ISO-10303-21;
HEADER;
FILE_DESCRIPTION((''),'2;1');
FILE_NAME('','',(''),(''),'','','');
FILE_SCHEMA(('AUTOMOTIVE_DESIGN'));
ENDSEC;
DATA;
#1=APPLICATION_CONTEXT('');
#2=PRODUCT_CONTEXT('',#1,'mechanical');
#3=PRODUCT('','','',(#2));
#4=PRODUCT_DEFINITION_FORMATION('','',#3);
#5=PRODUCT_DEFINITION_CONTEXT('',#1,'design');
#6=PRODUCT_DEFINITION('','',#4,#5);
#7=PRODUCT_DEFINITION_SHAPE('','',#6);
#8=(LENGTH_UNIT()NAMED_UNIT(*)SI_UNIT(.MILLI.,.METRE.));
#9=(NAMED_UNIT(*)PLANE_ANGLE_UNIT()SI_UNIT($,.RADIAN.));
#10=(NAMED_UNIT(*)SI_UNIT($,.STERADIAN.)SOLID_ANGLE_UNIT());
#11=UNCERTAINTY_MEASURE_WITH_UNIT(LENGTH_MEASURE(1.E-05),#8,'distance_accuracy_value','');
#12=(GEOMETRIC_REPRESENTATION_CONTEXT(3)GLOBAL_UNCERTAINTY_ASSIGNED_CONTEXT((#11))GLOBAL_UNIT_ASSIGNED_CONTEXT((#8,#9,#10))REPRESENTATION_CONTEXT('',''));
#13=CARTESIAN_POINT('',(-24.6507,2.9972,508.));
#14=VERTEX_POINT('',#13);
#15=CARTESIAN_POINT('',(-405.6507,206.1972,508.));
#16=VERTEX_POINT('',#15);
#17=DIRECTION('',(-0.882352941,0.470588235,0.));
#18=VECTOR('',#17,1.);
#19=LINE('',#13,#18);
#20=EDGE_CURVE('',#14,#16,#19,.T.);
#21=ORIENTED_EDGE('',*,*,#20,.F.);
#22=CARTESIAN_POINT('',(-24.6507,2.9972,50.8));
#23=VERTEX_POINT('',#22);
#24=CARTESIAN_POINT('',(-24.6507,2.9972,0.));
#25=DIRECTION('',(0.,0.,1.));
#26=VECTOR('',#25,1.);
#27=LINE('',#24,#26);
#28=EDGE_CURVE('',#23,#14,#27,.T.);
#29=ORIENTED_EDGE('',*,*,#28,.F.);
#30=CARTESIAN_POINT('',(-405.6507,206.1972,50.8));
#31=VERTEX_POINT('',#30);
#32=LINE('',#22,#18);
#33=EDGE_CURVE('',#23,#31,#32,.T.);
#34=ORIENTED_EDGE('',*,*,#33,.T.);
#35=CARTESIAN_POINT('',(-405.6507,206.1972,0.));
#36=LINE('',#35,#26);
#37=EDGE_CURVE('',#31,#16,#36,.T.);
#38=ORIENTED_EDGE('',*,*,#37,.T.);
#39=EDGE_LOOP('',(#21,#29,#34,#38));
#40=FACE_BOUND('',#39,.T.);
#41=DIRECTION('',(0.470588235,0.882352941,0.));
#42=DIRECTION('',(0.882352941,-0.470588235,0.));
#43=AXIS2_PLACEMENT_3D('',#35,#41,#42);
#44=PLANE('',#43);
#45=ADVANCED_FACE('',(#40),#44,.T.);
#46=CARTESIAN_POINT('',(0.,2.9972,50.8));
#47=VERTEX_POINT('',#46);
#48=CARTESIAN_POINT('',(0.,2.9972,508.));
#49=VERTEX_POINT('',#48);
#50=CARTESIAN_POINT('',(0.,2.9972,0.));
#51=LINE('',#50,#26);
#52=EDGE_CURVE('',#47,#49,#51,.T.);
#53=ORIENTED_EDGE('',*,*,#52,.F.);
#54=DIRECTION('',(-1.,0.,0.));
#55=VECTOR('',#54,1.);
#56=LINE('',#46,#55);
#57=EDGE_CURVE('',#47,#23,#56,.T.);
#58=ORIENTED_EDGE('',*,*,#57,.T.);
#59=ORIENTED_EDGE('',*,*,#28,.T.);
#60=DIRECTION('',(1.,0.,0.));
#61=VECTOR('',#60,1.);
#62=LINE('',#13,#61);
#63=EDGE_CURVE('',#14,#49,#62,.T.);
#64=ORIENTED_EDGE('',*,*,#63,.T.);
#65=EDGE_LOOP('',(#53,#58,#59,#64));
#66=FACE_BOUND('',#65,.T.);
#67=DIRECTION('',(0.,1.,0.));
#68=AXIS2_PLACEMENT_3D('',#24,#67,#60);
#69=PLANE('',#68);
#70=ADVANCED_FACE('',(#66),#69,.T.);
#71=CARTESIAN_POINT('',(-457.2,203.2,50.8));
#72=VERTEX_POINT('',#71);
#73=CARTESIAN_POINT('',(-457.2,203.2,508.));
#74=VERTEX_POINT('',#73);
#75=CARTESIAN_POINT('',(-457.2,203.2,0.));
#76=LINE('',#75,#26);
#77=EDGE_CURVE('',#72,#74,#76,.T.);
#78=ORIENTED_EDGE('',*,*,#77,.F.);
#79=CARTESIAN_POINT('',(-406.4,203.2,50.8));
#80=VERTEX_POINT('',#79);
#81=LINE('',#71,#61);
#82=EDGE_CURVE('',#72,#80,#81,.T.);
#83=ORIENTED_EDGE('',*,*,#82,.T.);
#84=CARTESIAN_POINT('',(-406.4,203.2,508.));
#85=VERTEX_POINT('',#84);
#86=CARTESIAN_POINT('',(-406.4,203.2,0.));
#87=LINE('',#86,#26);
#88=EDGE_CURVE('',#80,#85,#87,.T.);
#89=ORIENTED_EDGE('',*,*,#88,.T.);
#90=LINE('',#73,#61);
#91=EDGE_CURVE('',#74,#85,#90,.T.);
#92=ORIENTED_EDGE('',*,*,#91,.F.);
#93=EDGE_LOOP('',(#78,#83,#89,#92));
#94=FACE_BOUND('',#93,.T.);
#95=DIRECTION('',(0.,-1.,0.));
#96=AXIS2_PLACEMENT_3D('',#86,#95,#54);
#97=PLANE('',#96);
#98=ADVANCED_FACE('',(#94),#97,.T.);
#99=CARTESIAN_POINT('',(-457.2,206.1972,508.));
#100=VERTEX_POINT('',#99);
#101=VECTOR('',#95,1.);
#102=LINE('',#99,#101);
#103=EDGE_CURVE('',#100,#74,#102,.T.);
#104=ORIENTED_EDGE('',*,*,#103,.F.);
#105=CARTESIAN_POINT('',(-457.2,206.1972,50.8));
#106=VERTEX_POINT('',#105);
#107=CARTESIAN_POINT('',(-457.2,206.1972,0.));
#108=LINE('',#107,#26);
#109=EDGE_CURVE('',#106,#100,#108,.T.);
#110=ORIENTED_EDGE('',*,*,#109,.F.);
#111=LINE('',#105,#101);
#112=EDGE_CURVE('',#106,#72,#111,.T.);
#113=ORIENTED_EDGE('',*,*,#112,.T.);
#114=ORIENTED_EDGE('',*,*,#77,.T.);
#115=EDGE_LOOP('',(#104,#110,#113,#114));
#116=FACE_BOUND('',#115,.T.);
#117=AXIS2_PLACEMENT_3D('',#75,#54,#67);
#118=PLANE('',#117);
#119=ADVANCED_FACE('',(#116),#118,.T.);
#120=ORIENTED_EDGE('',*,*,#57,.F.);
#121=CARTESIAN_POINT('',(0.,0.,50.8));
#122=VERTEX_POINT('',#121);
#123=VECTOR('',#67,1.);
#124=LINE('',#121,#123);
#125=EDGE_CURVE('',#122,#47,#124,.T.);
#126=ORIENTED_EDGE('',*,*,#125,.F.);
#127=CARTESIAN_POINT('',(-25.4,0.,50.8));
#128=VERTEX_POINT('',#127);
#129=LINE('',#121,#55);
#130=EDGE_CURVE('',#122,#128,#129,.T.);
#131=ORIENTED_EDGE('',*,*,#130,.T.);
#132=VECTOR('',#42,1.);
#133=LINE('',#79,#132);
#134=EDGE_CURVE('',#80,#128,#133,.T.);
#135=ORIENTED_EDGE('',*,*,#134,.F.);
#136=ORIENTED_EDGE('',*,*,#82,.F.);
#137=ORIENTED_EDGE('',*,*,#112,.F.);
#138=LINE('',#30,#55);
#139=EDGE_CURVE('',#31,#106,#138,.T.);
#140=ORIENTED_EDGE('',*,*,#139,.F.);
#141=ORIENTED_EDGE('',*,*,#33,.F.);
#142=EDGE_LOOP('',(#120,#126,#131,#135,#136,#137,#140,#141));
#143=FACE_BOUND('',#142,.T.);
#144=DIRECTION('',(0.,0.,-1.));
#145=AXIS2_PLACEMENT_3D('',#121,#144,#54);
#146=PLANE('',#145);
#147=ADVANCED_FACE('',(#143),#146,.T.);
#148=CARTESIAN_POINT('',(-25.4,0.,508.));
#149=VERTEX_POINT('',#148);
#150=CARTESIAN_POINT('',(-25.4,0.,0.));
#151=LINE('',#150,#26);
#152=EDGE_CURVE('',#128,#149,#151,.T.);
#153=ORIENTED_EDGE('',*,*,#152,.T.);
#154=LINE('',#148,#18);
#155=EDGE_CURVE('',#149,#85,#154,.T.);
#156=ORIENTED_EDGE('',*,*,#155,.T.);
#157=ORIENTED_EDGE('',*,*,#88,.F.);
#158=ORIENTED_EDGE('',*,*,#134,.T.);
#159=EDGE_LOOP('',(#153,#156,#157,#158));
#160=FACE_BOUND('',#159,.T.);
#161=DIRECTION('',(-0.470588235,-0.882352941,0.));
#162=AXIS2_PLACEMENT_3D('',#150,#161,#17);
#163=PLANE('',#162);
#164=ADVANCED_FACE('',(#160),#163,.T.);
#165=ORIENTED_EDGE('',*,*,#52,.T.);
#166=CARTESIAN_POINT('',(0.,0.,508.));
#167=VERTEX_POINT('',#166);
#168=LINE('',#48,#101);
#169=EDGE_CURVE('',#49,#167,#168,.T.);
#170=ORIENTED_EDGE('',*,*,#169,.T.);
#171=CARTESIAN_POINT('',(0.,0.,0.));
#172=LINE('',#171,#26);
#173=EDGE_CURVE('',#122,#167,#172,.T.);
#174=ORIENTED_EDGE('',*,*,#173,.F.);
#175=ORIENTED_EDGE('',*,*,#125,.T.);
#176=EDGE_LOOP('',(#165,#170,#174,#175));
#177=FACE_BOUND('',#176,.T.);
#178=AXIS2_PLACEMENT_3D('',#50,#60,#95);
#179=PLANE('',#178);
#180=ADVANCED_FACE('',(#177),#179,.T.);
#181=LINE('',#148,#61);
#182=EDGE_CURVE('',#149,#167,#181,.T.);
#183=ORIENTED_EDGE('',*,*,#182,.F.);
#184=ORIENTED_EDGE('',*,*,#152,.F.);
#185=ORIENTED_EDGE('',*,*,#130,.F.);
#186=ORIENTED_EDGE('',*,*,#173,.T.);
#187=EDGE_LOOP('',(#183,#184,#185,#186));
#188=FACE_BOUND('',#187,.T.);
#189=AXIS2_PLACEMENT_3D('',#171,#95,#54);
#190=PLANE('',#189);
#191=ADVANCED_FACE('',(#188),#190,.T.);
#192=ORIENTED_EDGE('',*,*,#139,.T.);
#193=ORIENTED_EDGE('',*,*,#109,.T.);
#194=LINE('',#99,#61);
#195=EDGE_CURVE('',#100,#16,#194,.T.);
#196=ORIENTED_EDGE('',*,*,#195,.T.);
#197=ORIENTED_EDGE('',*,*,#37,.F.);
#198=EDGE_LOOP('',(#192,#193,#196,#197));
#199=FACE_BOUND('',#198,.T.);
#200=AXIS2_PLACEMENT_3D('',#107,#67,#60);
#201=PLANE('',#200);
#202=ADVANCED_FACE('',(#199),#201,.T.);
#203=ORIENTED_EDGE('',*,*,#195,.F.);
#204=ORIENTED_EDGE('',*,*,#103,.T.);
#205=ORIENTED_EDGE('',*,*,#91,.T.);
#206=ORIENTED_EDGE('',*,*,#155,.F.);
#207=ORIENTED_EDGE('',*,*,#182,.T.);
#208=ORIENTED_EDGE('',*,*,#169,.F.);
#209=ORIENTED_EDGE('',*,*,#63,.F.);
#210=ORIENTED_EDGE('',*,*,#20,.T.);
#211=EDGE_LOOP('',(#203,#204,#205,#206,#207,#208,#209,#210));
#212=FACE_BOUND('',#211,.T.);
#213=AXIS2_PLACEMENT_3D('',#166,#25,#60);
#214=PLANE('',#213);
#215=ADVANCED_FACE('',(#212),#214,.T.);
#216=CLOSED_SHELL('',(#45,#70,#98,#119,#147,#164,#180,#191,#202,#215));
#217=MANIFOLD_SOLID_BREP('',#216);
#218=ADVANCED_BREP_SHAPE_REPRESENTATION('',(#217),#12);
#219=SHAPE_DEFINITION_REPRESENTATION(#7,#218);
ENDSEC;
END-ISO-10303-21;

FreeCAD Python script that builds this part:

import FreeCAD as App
import Part
import Sketcher

V = App.Vector
Q = App.Units.Quantity


def add_polygon(sketch, points):
    """Adds a closed chain of lines whose ends are joined by coincident constraints."""
    first, n = sketch.GeometryCount, len(points)
    for a, b in zip(points, points[1:] + points[:1]):
        sketch.addGeometry(Part.LineSegment(App.Vector(*a, 0), App.Vector(*b, 0)), False)
    for i in range(n):
        sketch.addConstraint(Sketcher.Constraint("Coincident", first + i, 2, first + (i + 1) % n, 1))

doc = App.newDocument("Part")
body = doc.addObject("PartDesign::Body", "Body")

sketch1 = body.newObject("Sketcher::SketchObject", "Sketch")
sketch1.AttachmentSupport = (doc.getObject("XY_Plane"), [""])
sketch1.MapMode = "FlatFace"
add_polygon(sketch1, [(-25.4, 0), (0, 0), (0, 3), (-24.7, 3), (-405.7, 206.2), (-457.2, 206.2), (-457.2, 203.2), (-406.4, 203.2)])
sketch1.addConstraint([
    Sketcher.Constraint("Horizontal", 0),
    Sketcher.Constraint("Vertical", 1),
    Sketcher.Constraint("Horizontal", 2),
    Sketcher.Constraint("Horizontal", 4),
    Sketcher.Constraint("Vertical", 5),
    Sketcher.Constraint("Horizontal", 6),
    Sketcher.Constraint("Coincident", 0, 2, -1, 1),
    Sketcher.Constraint("Parallel", 3, 7),
    Sketcher.Constraint("Equal", 1, 5),
    Sketcher.Constraint("DistanceX", 0, 1, 0, 2, Q("1 in")),
    Sketcher.Constraint("DistanceX", 6, 1, 6, 2, Q("2 in")),
    Sketcher.Constraint("DistanceY", -1, 1, 5, 2, Q("8 in")),
    Sketcher.Constraint("DistanceX", 3, 2, 2, 2, Q("15 in")),
    Sketcher.Constraint("DistanceY", 1, 1, 1, 2, Q("0.118 in")),
    Sketcher.Constraint("DistanceX", 2, 2, 2, 1, Q("0.9705 in")),
])
pad1 = body.newObject("PartDesign::Pad", "Pad")
pad1.Profile = sketch1
pad1.Length = Q("22 in")

sketch2 = body.newObject("Sketcher::SketchObject", "Sketch001")
sketch2.AttachmentSupport = (doc.getObject("XY_Plane"), [""])
sketch2.MapMode = "FlatFace"
sketch2.AttachmentOffset = App.Placement(V(0, 0, 22 * 25.4), App.Rotation())
add_polygon(sketch2, [(-406.4, 203.2), (-25.4, 0), (0, 0), (0, 3), (-24.7, 3), (-405.7, 206.2), (-457.2, 206.2), (-457.2, 203.2)])
sketch2.addConstraint([
    Sketcher.Constraint("Horizontal", 1),
    Sketcher.Constraint("Vertical", 2),
    Sketcher.Constraint("Horizontal", 3),
    Sketcher.Constraint("Horizontal", 5),
    Sketcher.Constraint("Vertical", 6),
    Sketcher.Constraint("Horizontal", 7),
    Sketcher.Constraint("Coincident", 1, 2, -1, 1),
    Sketcher.Constraint("Parallel", 0, 4),
    Sketcher.Constraint("Equal", 2, 6),
    Sketcher.Constraint("DistanceX", 1, 1, 1, 2, Q("1 in")),
    Sketcher.Constraint("DistanceX", 7, 1, 7, 2, Q("2 in")),
    Sketcher.Constraint("Distance", 0, Q("17 in")),
    Sketcher.Constraint("DistanceX", 5, 2, -1, 1, Q("18 in")),
    Sketcher.Constraint("DistanceY", 2, 1, 2, 2, Q("0.118 in")),
    Sketcher.Constraint("DistanceX", 3, 2, 3, 1, Q("0.9705 in")),
])
pocket1 = body.newObject("PartDesign::Pocket", "Pocket")
pocket1.Profile = sketch2
pocket1.Length = Q("2 in")

sketch3 = body.newObject("Sketcher::SketchObject", "Sketch002")
sketch3.AttachmentSupport = (doc.getObject("XY_Plane"), [""])
sketch3.MapMode = "FlatFace"
add_polygon(sketch3, [(-25.4, 0), (-406.4, 203.2), (-457.2, 203.2), (-457.2, 206.2), (-405.7, 206.2), (-24.7, 3), (0, 3), (0, 0)])
sketch3.addConstraint([
    Sketcher.Constraint("Horizontal", 1),
    Sketcher.Constraint("Vertical", 2),
    Sketcher.Constraint("Horizontal", 3),
    Sketcher.Constraint("Horizontal", 5),
    Sketcher.Constraint("Vertical", 6),
    Sketcher.Constraint("Horizontal", 7),
    Sketcher.Constraint("Coincident", 6, 2, -1, 1),
    Sketcher.Constraint("Parallel", 0, 4),
    Sketcher.Constraint("Equal", 2, 6),
    Sketcher.Constraint("DistanceX", 1, 2, 1, 1, Q("2 in")),
    Sketcher.Constraint("DistanceX", 7, 2, 7, 1, Q("1 in")),
    Sketcher.Constraint("Distance", 0, Q("17 in")),
    Sketcher.Constraint("DistanceX", 0, 2, -1, 1, Q("16 in")),
    Sketcher.Constraint("DistanceY", 2, 1, 2, 2, Q("0.118 in")),
    Sketcher.Constraint("DistanceX", 3, 1, 3, 2, Q("2.0295 in")),
])
pocket2 = body.newObject("PartDesign::Pocket", "Pocket001")
pocket2.Profile = sketch3
pocket2.Length = Q("2 in")
pocket2.Reversed = True

doc.recompute()
